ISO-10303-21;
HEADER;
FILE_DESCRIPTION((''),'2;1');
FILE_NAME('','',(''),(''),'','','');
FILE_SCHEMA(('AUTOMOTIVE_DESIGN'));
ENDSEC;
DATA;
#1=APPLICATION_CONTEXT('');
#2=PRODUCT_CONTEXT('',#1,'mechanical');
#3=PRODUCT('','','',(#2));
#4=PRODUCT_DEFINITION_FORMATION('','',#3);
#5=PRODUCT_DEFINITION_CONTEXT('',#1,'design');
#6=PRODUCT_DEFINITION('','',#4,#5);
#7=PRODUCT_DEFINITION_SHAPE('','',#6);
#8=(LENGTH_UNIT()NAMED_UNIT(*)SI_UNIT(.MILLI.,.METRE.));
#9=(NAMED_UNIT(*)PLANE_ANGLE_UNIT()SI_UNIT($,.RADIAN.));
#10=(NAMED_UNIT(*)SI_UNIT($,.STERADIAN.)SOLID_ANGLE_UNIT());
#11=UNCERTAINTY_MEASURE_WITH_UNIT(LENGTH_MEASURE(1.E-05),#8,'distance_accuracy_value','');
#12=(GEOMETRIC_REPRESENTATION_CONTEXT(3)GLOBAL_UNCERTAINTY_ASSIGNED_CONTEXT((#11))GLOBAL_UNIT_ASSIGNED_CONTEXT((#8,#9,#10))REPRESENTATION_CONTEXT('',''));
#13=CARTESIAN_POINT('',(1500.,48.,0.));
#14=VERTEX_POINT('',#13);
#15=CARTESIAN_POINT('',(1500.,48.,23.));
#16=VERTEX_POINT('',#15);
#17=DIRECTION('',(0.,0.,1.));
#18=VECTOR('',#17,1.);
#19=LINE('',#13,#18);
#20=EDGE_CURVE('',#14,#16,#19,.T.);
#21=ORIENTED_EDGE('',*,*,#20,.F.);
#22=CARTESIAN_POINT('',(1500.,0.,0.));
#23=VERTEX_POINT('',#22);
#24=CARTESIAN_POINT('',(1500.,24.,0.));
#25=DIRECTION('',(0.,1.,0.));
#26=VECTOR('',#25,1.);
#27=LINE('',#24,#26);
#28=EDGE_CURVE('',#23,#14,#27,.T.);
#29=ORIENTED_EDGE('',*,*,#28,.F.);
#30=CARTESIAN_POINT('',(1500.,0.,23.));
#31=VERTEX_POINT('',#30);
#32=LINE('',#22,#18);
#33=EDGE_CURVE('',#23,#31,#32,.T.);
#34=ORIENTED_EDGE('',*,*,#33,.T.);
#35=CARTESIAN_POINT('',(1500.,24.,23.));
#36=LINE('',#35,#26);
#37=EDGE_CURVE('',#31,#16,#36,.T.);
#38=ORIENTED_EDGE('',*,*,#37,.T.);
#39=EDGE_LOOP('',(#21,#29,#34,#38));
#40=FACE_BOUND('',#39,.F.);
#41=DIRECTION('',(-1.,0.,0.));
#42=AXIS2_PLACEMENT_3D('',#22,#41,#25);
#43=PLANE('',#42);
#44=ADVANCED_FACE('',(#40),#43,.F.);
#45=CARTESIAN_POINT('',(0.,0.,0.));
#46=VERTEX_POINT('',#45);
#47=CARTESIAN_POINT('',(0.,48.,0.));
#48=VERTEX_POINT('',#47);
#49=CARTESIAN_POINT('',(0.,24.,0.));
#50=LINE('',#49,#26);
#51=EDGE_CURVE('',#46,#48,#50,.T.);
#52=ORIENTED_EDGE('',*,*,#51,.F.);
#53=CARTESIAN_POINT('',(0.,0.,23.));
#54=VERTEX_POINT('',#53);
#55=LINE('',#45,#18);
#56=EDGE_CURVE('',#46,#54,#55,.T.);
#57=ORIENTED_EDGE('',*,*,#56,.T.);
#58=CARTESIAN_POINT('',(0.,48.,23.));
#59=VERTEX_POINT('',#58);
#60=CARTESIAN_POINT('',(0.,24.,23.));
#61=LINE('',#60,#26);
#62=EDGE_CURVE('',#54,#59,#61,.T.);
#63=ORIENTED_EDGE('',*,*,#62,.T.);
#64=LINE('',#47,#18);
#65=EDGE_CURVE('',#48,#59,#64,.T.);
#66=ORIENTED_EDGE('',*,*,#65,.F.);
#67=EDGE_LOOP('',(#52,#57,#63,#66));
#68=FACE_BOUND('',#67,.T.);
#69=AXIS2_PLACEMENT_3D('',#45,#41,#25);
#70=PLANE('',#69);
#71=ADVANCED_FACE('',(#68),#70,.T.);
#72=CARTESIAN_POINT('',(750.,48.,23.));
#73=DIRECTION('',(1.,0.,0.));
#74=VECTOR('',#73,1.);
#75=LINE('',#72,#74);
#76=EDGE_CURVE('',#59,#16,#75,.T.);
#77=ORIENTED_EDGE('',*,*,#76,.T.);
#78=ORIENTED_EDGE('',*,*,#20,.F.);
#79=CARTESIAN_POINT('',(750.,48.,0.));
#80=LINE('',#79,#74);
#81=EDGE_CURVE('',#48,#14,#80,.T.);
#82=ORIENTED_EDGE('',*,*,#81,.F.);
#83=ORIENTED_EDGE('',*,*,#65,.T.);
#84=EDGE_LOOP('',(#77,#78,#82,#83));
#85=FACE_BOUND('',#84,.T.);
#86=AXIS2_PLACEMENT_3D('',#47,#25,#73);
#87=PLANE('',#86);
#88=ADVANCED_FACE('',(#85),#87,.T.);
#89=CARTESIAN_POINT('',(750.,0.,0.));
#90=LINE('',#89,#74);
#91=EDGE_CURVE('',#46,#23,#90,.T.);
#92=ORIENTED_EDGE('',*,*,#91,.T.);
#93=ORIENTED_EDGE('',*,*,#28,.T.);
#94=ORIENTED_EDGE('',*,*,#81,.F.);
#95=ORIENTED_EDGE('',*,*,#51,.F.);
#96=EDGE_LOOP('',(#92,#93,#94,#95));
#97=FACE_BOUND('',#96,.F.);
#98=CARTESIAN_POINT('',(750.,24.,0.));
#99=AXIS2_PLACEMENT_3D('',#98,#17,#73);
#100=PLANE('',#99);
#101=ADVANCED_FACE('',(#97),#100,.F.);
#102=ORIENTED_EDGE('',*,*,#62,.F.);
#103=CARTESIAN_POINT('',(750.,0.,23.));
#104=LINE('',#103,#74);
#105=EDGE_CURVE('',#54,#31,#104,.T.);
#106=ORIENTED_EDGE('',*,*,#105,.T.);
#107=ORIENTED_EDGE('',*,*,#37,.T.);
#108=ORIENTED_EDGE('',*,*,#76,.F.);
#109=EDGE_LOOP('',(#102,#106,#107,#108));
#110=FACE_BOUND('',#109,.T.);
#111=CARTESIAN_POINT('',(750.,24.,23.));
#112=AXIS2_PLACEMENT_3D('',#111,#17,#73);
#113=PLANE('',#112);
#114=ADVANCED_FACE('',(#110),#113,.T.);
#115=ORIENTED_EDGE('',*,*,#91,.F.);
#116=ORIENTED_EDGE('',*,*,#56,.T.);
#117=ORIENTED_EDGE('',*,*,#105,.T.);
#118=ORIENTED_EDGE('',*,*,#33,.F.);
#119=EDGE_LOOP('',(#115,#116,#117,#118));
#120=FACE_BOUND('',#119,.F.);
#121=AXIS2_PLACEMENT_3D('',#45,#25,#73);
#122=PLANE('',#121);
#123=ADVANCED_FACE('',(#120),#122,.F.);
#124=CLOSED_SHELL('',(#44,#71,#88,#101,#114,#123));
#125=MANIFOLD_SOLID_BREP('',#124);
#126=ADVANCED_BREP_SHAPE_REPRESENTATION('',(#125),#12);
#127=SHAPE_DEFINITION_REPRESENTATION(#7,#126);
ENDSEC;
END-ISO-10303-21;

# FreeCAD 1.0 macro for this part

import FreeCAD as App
import Part
import Sketcher
Q = App.Units.Quantity


def add_polygon(sketch, points):
    """Adds a closed chain of lines whose ends are joined by coincident constraints."""
    first, n = sketch.GeometryCount, len(points)
    for a, b in zip(points, points[1:] + points[:1]):
        sketch.addGeometry(Part.LineSegment(App.Vector(*a, 0), App.Vector(*b, 0)), False)
    for i in range(n):
        sketch.addConstraint(Sketcher.Constraint("Coincident", first + i, 2, first + (i + 1) % n, 1))

doc = App.newDocument("Part")
params = doc.addObject("Spreadsheet::Sheet", "Params")
for row, (alias, value) in enumerate([
    ("sketch1_width", "1500 mm"),
    ("sketch1_height", "48 mm"),
    ("pad1_length", "23 mm"),
], start=1):
    params.set(f"A{row}", alias)
    params.set(f"B{row}", "=" + value)
    params.setAlias(f"B{row}", alias)

body = doc.addObject("PartDesign::Body", "Body")

# Sketch on XY plane
sketch1 = body.newObject("Sketcher::SketchObject", "Sketch")
sketch1.AttachmentSupport = (doc.getObject("XY_Plane"), [""])
sketch1.MapMode = "FlatFace"
add_polygon(sketch1, [(0, 48), (0, 0), (1500, 0), (1500, 48)])  # lines 0-3
sketch1.addConstraint(Sketcher.Constraint("Vertical", 0))
sketch1.addConstraint(Sketcher.Constraint("Horizontal", 1))
sketch1.addConstraint(Sketcher.Constraint("Vertical", 2))
sketch1.addConstraint(Sketcher.Constraint("Horizontal", 3))
sketch1.addConstraint(Sketcher.Constraint("Coincident", 0, 2, -1, 1))
sketch1.addConstraint(Sketcher.Constraint("DistanceX", 1, 1, 1, 2, Q("1500 mm")))
sketch1.addConstraint(Sketcher.Constraint("DistanceY", 0, 2, 0, 1, Q("48 mm")))
sketch1.setExpression("Constraints[9]", "Params.sketch1_width")
sketch1.setExpression("Constraints[10]", "Params.sketch1_height")
pad1 = body.newObject("PartDesign::Pad", "Pad")
pad1.Profile = sketch1
pad1.setExpression("Length", "Params.pad1_length")

doc.recompute()
